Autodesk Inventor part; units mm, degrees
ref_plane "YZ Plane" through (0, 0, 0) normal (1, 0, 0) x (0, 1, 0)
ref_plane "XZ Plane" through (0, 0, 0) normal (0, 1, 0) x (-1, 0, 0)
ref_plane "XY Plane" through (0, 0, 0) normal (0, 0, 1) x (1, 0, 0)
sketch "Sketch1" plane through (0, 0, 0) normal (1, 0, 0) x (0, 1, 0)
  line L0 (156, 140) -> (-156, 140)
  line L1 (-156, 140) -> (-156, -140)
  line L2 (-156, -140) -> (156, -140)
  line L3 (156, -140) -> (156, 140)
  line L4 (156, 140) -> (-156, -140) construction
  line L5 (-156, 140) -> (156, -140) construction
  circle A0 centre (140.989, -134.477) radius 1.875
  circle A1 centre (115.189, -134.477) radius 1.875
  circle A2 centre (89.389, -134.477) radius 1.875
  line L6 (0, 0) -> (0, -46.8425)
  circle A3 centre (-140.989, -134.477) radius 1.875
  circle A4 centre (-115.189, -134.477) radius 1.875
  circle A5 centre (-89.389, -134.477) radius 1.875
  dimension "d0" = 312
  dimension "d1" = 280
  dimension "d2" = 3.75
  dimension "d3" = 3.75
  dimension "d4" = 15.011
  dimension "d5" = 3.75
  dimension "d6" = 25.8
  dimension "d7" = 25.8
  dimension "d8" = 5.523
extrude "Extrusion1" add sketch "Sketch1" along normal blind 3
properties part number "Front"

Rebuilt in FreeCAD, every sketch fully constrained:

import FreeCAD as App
import Part
import Sketcher

V = App.Vector


def add_polygon(sketch, points):
    """Adds a closed chain of lines whose ends are joined by coincident constraints."""
    first, n = sketch.GeometryCount, len(points)
    for a, b in zip(points, points[1:] + points[:1]):
        sketch.addGeometry(Part.LineSegment(App.Vector(*a, 0), App.Vector(*b, 0)), False)
    for i in range(n):
        sketch.addConstraint(Sketcher.Constraint("Coincident", first + i, 2, first + (i + 1) % n, 1))

doc = App.newDocument("Part")
body = doc.addObject("PartDesign::Body", "Body")

# Sketch on YZ plane
sketch1 = body.newObject("Sketcher::SketchObject", "Sketch")
sketch1.AttachmentSupport = (doc.getObject("YZ_Plane"), [""])
sketch1.MapMode = "FlatFace"
add_polygon(sketch1, [(156, -140), (156, 140), (-156, 140), (-156, -140)])  # lines 0-3
sketch1.addGeometry(Part.Circle(V(-141, -134.5, 0), V(0, 0, 1), 1.9), False)  # 4
sketch1.addGeometry(Part.Circle(V(-115.2, -134.5, 0), V(0, 0, 1), 1.9), False)  # 5
sketch1.addGeometry(Part.Circle(V(-89.4, -134.5, 0), V(0, 0, 1), 1.9), False)  # 6
sketch1.addGeometry(Part.Circle(V(89.4, -134.5, 0), V(0, 0, 1), 1.9), False)  # 7
sketch1.addGeometry(Part.Circle(V(115.2, -134.5, 0), V(0, 0, 1), 1.9), False)  # 8
sketch1.addGeometry(Part.Circle(V(141, -134.5, 0), V(0, 0, 1), 1.9), False)  # 9
sketch1.addConstraint([
    Sketcher.Constraint("Vertical", 0),
    Sketcher.Constraint("Horizontal", 1),
    Sketcher.Constraint("Vertical", 2),
    Sketcher.Constraint("Horizontal", 3),
    Sketcher.Constraint("Equal", 4, 5),
    Sketcher.Constraint("Equal", 5, 6),
    Sketcher.Constraint("Equal", 6, 7),
    Sketcher.Constraint("Equal", 7, 8),
    Sketcher.Constraint("Equal", 8, 9),
    Sketcher.Constraint("Symmetric", 0, 2, 2, 2, -1, 1),
    Sketcher.Constraint("Symmetric", 6, 3, 7, 3, -2),
    Sketcher.Constraint("Symmetric", 5, 3, 8, 3, -2),
    Sketcher.Constraint("Symmetric", 4, 3, 9, 3, -2),
    Sketcher.Constraint("Horizontal", 4, 3, 5, 3),
    Sketcher.Constraint("Horizontal", 5, 3, 6, 3),
    Sketcher.Constraint("Diameter", 4, 3.75),
    Sketcher.Constraint("DistanceX", 1, 2, 1, 1, 312.0),
    Sketcher.Constraint("DistanceY", 0, 1, 0, 2, 280.0),
    Sketcher.Constraint("DistanceX", 4, 3, 5, 3, 25.8),
    Sketcher.Constraint("DistanceX", 5, 3, 6, 3, 25.8),
    Sketcher.Constraint("DistanceX", 9, 3, 0, 2, 15.011),
    Sketcher.Constraint("DistanceY", 2, 2, 4, 3, 5.523),
])
pad1 = body.newObject("PartDesign::Pad", "Pad")
pad1.Profile = sketch1
pad1.Length = 3

doc.recompute()
